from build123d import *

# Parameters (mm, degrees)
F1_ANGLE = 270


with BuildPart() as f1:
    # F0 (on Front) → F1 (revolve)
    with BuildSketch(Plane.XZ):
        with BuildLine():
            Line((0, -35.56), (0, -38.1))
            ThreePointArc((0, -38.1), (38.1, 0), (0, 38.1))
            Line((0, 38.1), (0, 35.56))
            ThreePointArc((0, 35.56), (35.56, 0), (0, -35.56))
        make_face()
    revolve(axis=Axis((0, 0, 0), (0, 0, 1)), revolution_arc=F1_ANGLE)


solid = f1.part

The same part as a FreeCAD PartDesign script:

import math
import FreeCAD as App
import Part
import Sketcher
from FreeCAD import Vector
Q = App.Units.Quantity

doc = App.newDocument("Part")
body = doc.addObject("PartDesign::Body", "Body")

# Sketch on XZ plane
sketch1 = body.newObject("Sketcher::SketchObject", "Sketch")
sketch1.AttachmentSupport = (doc.getObject("XZ_Plane"), [""])
sketch1.MapMode = "FlatFace"
sketch1.addGeometry(Part.LineSegment(Vector(0, -35.56, 0), Vector(0, -38.1, 0)), False)
sketch1.addGeometry(Part.ArcOfCircle(Part.Circle(Vector(0, 0, 0), Vector(0, 0, 1), 38.1), math.radians(-90), math.radians(90)), False)
sketch1.addGeometry(Part.LineSegment(Vector(0, 38.1, 0), Vector(0, 35.56, 0)), False)
sketch1.addGeometry(Part.ArcOfCircle(Part.Circle(Vector(0, 0, 0), Vector(0, 0, 1), 35.56), math.radians(-90), math.radians(90)), False)
sketch1.addConstraint(Sketcher.Constraint("Coincident", 0, 2, 1, 1))
sketch1.addConstraint(Sketcher.Constraint("Coincident", 1, 2, 2, 1))
sketch1.addConstraint(Sketcher.Constraint("Coincident", 2, 2, 3, 2))
sketch1.addConstraint(Sketcher.Constraint("Coincident", 3, 1, 0, 1))
sketch1.addConstraint(Sketcher.Constraint("Vertical", 0))
sketch1.addConstraint(Sketcher.Constraint("Vertical", 2))
sketch1.addConstraint(Sketcher.Constraint("Coincident", 1, 3, -1, 1))
sketch1.addConstraint(Sketcher.Constraint("Coincident", 3, 3, -1, 1))
sketch1.addConstraint(Sketcher.Constraint("PointOnObject", 0, 2, -2))
sketch1.addConstraint(Sketcher.Constraint("PointOnObject", 1, 2, -2))
sketch1.addConstraint(Sketcher.Constraint("Radius", 1, Q("1.5 in")))
sketch1.addConstraint(Sketcher.Constraint("Radius", 3, Q("1.4 in")))
revolution = body.newObject("PartDesign::Revolution", "Revolution")
revolution.Profile = sketch1
revolution.ReferenceAxis = (sketch1, ["V_Axis"])
revolution.Angle = 270

doc.recompute()
